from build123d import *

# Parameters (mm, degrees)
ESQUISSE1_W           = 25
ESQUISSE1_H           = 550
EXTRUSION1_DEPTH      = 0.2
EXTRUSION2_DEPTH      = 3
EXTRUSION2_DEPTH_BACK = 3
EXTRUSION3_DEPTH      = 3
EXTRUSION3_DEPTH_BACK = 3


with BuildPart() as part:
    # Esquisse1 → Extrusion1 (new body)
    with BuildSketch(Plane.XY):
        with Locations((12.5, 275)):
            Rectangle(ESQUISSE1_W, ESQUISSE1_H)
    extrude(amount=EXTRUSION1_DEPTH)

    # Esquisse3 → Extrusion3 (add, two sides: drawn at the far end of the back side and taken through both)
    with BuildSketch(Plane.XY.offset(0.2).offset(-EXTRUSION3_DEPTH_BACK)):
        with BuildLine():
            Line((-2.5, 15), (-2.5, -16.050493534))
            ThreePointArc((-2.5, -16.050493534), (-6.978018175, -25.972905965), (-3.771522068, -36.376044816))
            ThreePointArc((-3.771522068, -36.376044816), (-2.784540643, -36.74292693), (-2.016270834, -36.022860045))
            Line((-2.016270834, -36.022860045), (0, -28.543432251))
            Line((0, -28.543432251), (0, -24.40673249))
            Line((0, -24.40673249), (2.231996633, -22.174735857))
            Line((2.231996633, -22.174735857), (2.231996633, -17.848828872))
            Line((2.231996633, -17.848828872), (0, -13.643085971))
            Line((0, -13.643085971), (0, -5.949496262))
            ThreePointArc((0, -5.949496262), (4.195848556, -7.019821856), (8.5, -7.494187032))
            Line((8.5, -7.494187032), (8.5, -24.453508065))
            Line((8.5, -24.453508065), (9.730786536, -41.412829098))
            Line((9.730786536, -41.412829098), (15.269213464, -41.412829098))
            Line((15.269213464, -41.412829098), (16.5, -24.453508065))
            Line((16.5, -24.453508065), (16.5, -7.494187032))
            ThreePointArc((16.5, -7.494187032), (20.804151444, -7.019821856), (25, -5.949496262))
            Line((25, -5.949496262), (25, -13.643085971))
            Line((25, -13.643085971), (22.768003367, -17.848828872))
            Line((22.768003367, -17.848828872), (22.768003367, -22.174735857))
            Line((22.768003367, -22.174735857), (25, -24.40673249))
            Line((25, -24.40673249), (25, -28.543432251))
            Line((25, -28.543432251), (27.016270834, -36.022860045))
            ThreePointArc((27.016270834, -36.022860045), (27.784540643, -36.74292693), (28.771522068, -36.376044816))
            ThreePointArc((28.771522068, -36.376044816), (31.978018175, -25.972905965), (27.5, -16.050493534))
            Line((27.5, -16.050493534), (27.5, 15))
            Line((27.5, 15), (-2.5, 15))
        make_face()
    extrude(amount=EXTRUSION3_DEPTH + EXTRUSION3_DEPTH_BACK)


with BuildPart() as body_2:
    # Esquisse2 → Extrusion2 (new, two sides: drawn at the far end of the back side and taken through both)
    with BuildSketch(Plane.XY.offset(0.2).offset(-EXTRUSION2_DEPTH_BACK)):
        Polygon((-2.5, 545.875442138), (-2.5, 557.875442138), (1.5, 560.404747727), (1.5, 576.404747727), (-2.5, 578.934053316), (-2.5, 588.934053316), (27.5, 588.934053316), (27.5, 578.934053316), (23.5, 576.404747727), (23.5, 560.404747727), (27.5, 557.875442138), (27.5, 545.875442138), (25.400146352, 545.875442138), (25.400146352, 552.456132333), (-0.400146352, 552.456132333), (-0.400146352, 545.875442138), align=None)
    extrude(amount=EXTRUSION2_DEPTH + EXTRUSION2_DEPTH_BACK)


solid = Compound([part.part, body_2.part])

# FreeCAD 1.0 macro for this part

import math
import FreeCAD as App
import Part
import Sketcher
Q = App.Units.Quantity

doc = App.newDocument("Part")
body = doc.addObject("PartDesign::Body", "Body")

# Sketch on XY plane
sketch1 = doc.addObject("Sketcher::SketchObject", "Sketch")
body.addObject(sketch1)
sketch1.AttachmentSupport = (doc.XY_Plane, [""])
sketch1.MapMode = "FlatFace"
sketch1.addGeometry(Part.LineSegment(App.Vector(0, 550, 0), App.Vector(0, 0, 0)), False)
sketch1.addGeometry(Part.LineSegment(App.Vector(0, 0, 0), App.Vector(25, 0, 0)), False)
sketch1.addGeometry(Part.LineSegment(App.Vector(25, 0, 0), App.Vector(25, 550, 0)), False)
sketch1.addGeometry(Part.LineSegment(App.Vector(25, 550, 0), App.Vector(0, 550, 0)), False)
sketch1.addConstraint(Sketcher.Constraint("Coincident", 0, 2, 1, 1))
sketch1.addConstraint(Sketcher.Constraint("Coincident", 1, 2, 2, 1))
sketch1.addConstraint(Sketcher.Constraint("Coincident", 2, 2, 3, 1))
sketch1.addConstraint(Sketcher.Constraint("Coincident", 3, 2, 0, 1))
sketch1.addConstraint(Sketcher.Constraint("Vertical", 0))
sketch1.addConstraint(Sketcher.Constraint("Horizontal", 1))
sketch1.addConstraint(Sketcher.Constraint("Vertical", 2))
sketch1.addConstraint(Sketcher.Constraint("Horizontal", 3))
sketch1.addConstraint(Sketcher.Constraint("Coincident", 0, 2, -1, 1))
sketch1.addConstraint(Sketcher.Constraint("DistanceX", 1, 1, 1, 2, Q("25 mm")))
sketch1.addConstraint(Sketcher.Constraint("DistanceY", 0, 2, 0, 1, Q("550 mm")))
pad1 = doc.addObject("PartDesign::Pad", "Pad")
body.addObject(pad1)
pad1.Profile = sketch1
pad1.Length = 0.2

# Sketch on XY plane
sketch2 = doc.addObject("Sketcher::SketchObject", "Sketch001")
body.addObject(sketch2)
sketch2.AttachmentSupport = (doc.XY_Plane, [""])
sketch2.MapMode = "FlatFace"
sketch2.AttachmentOffset = App.Placement(App.Vector(0, 0, 0.2), App.Rotation())
sketch2.addGeometry(Part.LineSegment(App.Vector(-2.5, 15, 0), App.Vector(-2.5, -16.1, 0)), False)
sketch2.addGeometry(Part.ArcOfCircle(Part.Circle(App.Vector(8.4, -26.9, 0), App.Vector(0, 0, 1), 15.4), math.radians(135), math.radians(218)), False)
sketch2.addGeometry(Part.ArcOfCircle(Part.Circle(App.Vector(-3, -35.8, 0), App.Vector(0, 0, 1), 1), math.radians(-142), math.radians(-15)), False)
sketch2.addGeometry(Part.LineSegment(App.Vector(-2, -36, 0), App.Vector(0, -28.5, 0)), False)
sketch2.addGeometry(Part.LineSegment(App.Vector(0, -28.5, 0), App.Vector(0, -24.4, 0)), False)
sketch2.addGeometry(Part.LineSegment(App.Vector(0, -24.4, 0), App.Vector(2.2, -22.2, 0)), False)
sketch2.addGeometry(Part.LineSegment(App.Vector(2.2, -22.2, 0), App.Vector(2.2, -17.8, 0)), False)
sketch2.addGeometry(Part.LineSegment(App.Vector(2.2, -17.8, 0), App.Vector(0, -13.6, 0)), False)
sketch2.addGeometry(Part.LineSegment(App.Vector(0, -13.6, 0), App.Vector(0, -5.9, 0)), False)
sketch2.addGeometry(Part.ArcOfCircle(Part.Circle(App.Vector(9.7, 23.4, 0), App.Vector(0, 0, 1), 31), math.radians(-108.32), math.radians(-92.28)), False)
sketch2.addGeometry(Part.LineSegment(App.Vector(8.5, -7.5, 0), App.Vector(8.5, -24.5, 0)), False)
sketch2.addGeometry(Part.LineSegment(App.Vector(8.5, -24.5, 0), App.Vector(9.7, -41.4, 0)), False)
sketch2.addGeometry(Part.LineSegment(App.Vector(9.7, -41.4, 0), App.Vector(15.3, -41.4, 0)), False)
sketch2.addGeometry(Part.LineSegment(App.Vector(15.3, -41.4, 0), App.Vector(16.5, -24.5, 0)), False)
sketch2.addGeometry(Part.LineSegment(App.Vector(16.5, -24.5, 0), App.Vector(16.5, -7.5, 0)), False)
sketch2.addGeometry(Part.ArcOfCircle(Part.Circle(App.Vector(15.3, 23.4, 0), App.Vector(0, 0, 1), 31), math.radians(-87.72), math.radians(-71.68)), False)
sketch2.addGeometry(Part.LineSegment(App.Vector(25, -5.9, 0), App.Vector(25, -13.6, 0)), False)
sketch2.addGeometry(Part.LineSegment(App.Vector(25, -13.6, 0), App.Vector(22.8, -17.8, 0)), False)
sketch2.addGeometry(Part.LineSegment(App.Vector(22.8, -17.8, 0), App.Vector(22.8, -22.2, 0)), False)
sketch2.addGeometry(Part.LineSegment(App.Vector(22.8, -22.2, 0), App.Vector(25, -24.4, 0)), False)
sketch2.addGeometry(Part.LineSegment(App.Vector(25, -24.4, 0), App.Vector(25, -28.5, 0)), False)
sketch2.addGeometry(Part.LineSegment(App.Vector(25, -28.5, 0), App.Vector(27, -36, 0)), False)
sketch2.addGeometry(Part.ArcOfCircle(Part.Circle(App.Vector(28, -35.8, 0), App.Vector(0, 0, 1), 1), math.radians(-165), math.radians(-38)), False)
sketch2.addGeometry(Part.ArcOfCircle(Part.Circle(App.Vector(16.6, -26.9, 0), App.Vector(0, 0, 1), 15.4), math.radians(-38), math.radians(45)), False)
sketch2.addGeometry(Part.LineSegment(App.Vector(27.5, -16.1, 0), App.Vector(27.5, 15, 0)), False)
sketch2.addGeometry(Part.LineSegment(App.Vector(27.5, 15, 0), App.Vector(-2.5, 15, 0)), False)
sketch2.addConstraint(Sketcher.Constraint("Coincident", 0, 2, 1, 1))
sketch2.addConstraint(Sketcher.Constraint("Tangent", 1, 2, 2, 1))
sketch2.addConstraint(Sketcher.Constraint("Tangent", 2, 2, 3, 1))
sketch2.addConstraint(Sketcher.Constraint("Coincident", 3, 2, 4, 1))
sketch2.addConstraint(Sketcher.Constraint("Coincident", 4, 2, 5, 1))
sketch2.addConstraint(Sketcher.Constraint("Coincident", 5, 2, 6, 1))
sketch2.addConstraint(Sketcher.Constraint("Coincident", 6, 2, 7, 1))
sketch2.addConstraint(Sketcher.Constraint("Coincident", 7, 2, 8, 1))
sketch2.addConstraint(Sketcher.Constraint("Coincident", 8, 2, 9, 1))
sketch2.addConstraint(Sketcher.Constraint("Coincident", 9, 2, 10, 1))
sketch2.addConstraint(Sketcher.Constraint("Coincident", 10, 2, 11, 1))
sketch2.addConstraint(Sketcher.Constraint("Coincident", 11, 2, 12, 1))
sketch2.addConstraint(Sketcher.Constraint("Coincident", 12, 2, 13, 1))
sketch2.addConstraint(Sketcher.Constraint("Coincident", 13, 2, 14, 1))
sketch2.addConstraint(Sketcher.Constraint("Coincident", 14, 2, 15, 1))
sketch2.addConstraint(Sketcher.Constraint("Coincident", 15, 2, 16, 1))
sketch2.addConstraint(Sketcher.Constraint("Coincident", 16, 2, 17, 1))
sketch2.addConstraint(Sketcher.Constraint("Coincident", 17, 2, 18, 1))
sketch2.addConstraint(Sketcher.Constraint("Coincident", 18, 2, 19, 1))
sketch2.addConstraint(Sketcher.Constraint("Coincident", 19, 2, 20, 1))
sketch2.addConstraint(Sketcher.Constraint("Coincident", 20, 2, 21, 1))
sketch2.addConstraint(Sketcher.Constraint("Tangent", 21, 2, 22, 1))
sketch2.addConstraint(Sketcher.Constraint("Tangent", 22, 2, 23, 1))
sketch2.addConstraint(Sketcher.Constraint("Coincident", 23, 2, 24, 1))
sketch2.addConstraint(Sketcher.Constraint("Coincident", 24, 2, 25, 1))
sketch2.addConstraint(Sketcher.Constraint("Coincident", 25, 2, 0, 1))
sketch2.addConstraint(Sketcher.Constraint("Vertical", 0))
sketch2.addConstraint(Sketcher.Constraint("Vertical", 4))
sketch2.addConstraint(Sketcher.Constraint("Vertical", 6))
sketch2.addConstraint(Sketcher.Constraint("Vertical", 8))
sketch2.addConstraint(Sketcher.Constraint("Vertical", 10))
sketch2.addConstraint(Sketcher.Constraint("Horizontal", 12))
sketch2.addConstraint(Sketcher.Constraint("Vertical", 14))
sketch2.addConstraint(Sketcher.Constraint("Vertical", 16))
sketch2.addConstraint(Sketcher.Constraint("Vertical", 18))
sketch2.addConstraint(Sketcher.Constraint("Vertical", 20))
sketch2.addConstraint(Sketcher.Constraint("Vertical", 24))
sketch2.addConstraint(Sketcher.Constraint("Horizontal", 25))
sketch2.addConstraint(Sketcher.Constraint("Equal", 9, 15))
sketch2.addConstraint(Sketcher.Constraint("Equal", 2, 22))
sketch2.addConstraint(Sketcher.Constraint("Equal", 1, 23))
sketch2.addConstraint(Sketcher.Constraint("PointOnObject", 3, 2, -2))
sketch2.addConstraint(Sketcher.Constraint("PointOnObject", 7, 2, -2))
sketch2.addConstraint(Sketcher.Constraint("Perpendicular", 5, 19))
sketch2.addConstraint(Sketcher.Constraint("Horizontal", 9, 3, 15, 3))
sketch2.addConstraint(Sketcher.Constraint("Horizontal", 2, 3, 22, 3))
sketch2.addConstraint(Sketcher.Constraint("Horizontal", 1, 3, 23, 3))
sketch2.addConstraint(Sketcher.Constraint("Horizontal", 10, 2, 13, 2))
sketch2.addConstraint(Sketcher.Constraint("Horizontal", 9, 2, 14, 2))
sketch2.addConstraint(Sketcher.Constraint("Horizontal", 8, 2, 15, 2))
sketch2.addConstraint(Sketcher.Constraint("Horizontal", 7, 2, 16, 2))
sketch2.addConstraint(Sketcher.Constraint("Horizontal", 6, 2, 17, 2))
sketch2.addConstraint(Sketcher.Constraint("Horizontal", 5, 2, 18, 2))
sketch2.addConstraint(Sketcher.Constraint("Horizontal", 4, 2, 19, 2))
sketch2.addConstraint(Sketcher.Constraint("Horizontal", 3, 2, 20, 2))
sketch2.addConstraint(Sketcher.Constraint("Horizontal", 2, 2, 21, 2))
sketch2.addConstraint(Sketcher.Constraint("Horizontal", 0, 2, 23, 2))
sketch2.addConstraint(Sketcher.Constraint("Vertical", 9, 3, 11, 2))
sketch2.addConstraint(Sketcher.Constraint("Vertical", 15, 3, 12, 2))
sketch2.addConstraint(Sketcher.Constraint("Vertical", 16, 2, 19, 2))
sketch2.addConstraint(Sketcher.Constraint("Equal", 7, 17))
sketch2.addConstraint(Sketcher.Constraint("Radius", 2, Q("1 mm")))
sketch2.addConstraint(Sketcher.Constraint("DistanceX", 25, 2, 25, 1, Q("30 mm")))
sketch2.addConstraint(Sketcher.Constraint("DistanceX", -1, 1, 15, 2, Q("25 mm")))
sketch2.addConstraint(Sketcher.Constraint("DistanceY", -1, 1, 24, 2, Q("15 mm")))
sketch2.addConstraint(Sketcher.Constraint("DistanceX", 0, 2, 9, 2, Q("11 mm")))
sketch2.addConstraint(Sketcher.Constraint("DistanceY", 4, 1, 4, 2, Q("4.1367 mm")))
sketch2.addConstraint(Sketcher.Constraint("Radius", 1, Q("15.391436 mm")))
sketch2.addConstraint(Sketcher.Constraint("Radius", 9, Q("30.956053 mm")))
sketch2.addConstraint(Sketcher.Constraint("DistanceY", 8, 1, 8, 2, Q("7.69359 mm")))
sketch2.addConstraint(Sketcher.Constraint("DistanceY", 10, 2, 10, 1, Q("16.959321 mm")))
sketch2.addConstraint(Sketcher.Constraint("DistanceX", 1, 3, 9, 3, Q("1.347398 mm")))
sketch2.addConstraint(Sketcher.Constraint("DistanceY", 7, 2, 9, 2, Q("6.148899 mm")))
sketch2.addConstraint(Sketcher.Constraint("Distance", 3, Q("7.746431 mm")))
sketch2.addConstraint(Sketcher.Constraint("Distance", 5, Q("3.15652 mm")))
sketch2.addConstraint(Sketcher.Constraint("Distance", 7, Q("4.761311 mm")))
sketch2.addConstraint(Sketcher.Constraint("DistanceY", 0, 2, 0, 1, Q("31.050494 mm")))
sketch2.addConstraint(Sketcher.Constraint("DistanceY", 6, 1, 6, 2, Q("4.325907 mm")))
sketch2.addConstraint(Sketcher.Constraint("DistanceY", -1, 1, 9, 3, Q("23.437389 mm")))
sketch2.addConstraint(Sketcher.Constraint("DistanceY", 11, 2, -1, 1, Q("41.412829 mm")))
pad2 = doc.addObject("PartDesign::Pad", "Pad001")
body.addObject(pad2)
pad2.Profile = sketch2
pad2.Type = "TwoLengths"
pad2.Length = 3
pad2.Length2 = 3
body2 = doc.addObject("PartDesign::Body", "Body001")

# Sketch on XY plane
sketch3 = doc.addObject("Sketcher::SketchObject", "Sketch002")
body2.addObject(sketch3)
sketch3.AttachmentSupport = (doc.getObject("XY_Plane001"), [""])
sketch3.MapMode = "FlatFace"
sketch3.AttachmentOffset = App.Placement(App.Vector(0, 0, 0.2), App.Rotation())
sketch3.addGeometry(Part.LineSegment(App.Vector(-2.5, 557.9, 0), App.Vector(-2.5, 545.9, 0)), False)
sketch3.addGeometry(Part.LineSegment(App.Vector(-2.5, 545.9, 0), App.Vector(-0.4, 545.9, 0)), False)
sketch3.addGeometry(Part.LineSegment(App.Vector(-0.4, 545.9, 0), App.Vector(-0.4, 552.5, 0)), False)
sketch3.addGeometry(Part.LineSegment(App.Vector(-0.4, 552.5, 0), App.Vector(25.4, 552.5, 0)), False)
sketch3.addGeometry(Part.LineSegment(App.Vector(25.4, 552.5, 0), App.Vector(25.4, 545.9, 0)), False)
sketch3.addGeometry(Part.LineSegment(App.Vector(25.4, 545.9, 0), App.Vector(27.5, 545.9, 0)), False)
sketch3.addGeometry(Part.LineSegment(App.Vector(27.5, 545.9, 0), App.Vector(27.5, 557.9, 0)), False)
sketch3.addGeometry(Part.LineSegment(App.Vector(27.5, 557.9, 0), App.Vector(23.5, 560.4, 0)), False)
sketch3.addGeometry(Part.LineSegment(App.Vector(23.5, 560.4, 0), App.Vector(23.5, 576.4, 0)), False)
sketch3.addGeometry(Part.LineSegment(App.Vector(23.5, 576.4, 0), App.Vector(27.5, 578.9, 0)), False)
sketch3.addGeometry(Part.LineSegment(App.Vector(27.5, 578.9, 0), App.Vector(27.5, 588.9, 0)), False)
sketch3.addGeometry(Part.LineSegment(App.Vector(27.5, 588.9, 0), App.Vector(-2.5, 588.9, 0)), False)
sketch3.addGeometry(Part.LineSegment(App.Vector(-2.5, 588.9, 0), App.Vector(-2.5, 578.9, 0)), False)
sketch3.addGeometry(Part.LineSegment(App.Vector(-2.5, 578.9, 0), App.Vector(1.5, 576.4, 0)), False)
sketch3.addGeometry(Part.LineSegment(App.Vector(1.5, 576.4, 0), App.Vector(1.5, 560.4, 0)), False)
sketch3.addGeometry(Part.LineSegment(App.Vector(1.5, 560.4, 0), App.Vector(-2.5, 557.9, 0)), False)
sketch3.addConstraint(Sketcher.Constraint("Coincident", 0, 2, 1, 1))
sketch3.addConstraint(Sketcher.Constraint("Coincident", 1, 2, 2, 1))
sketch3.addConstraint(Sketcher.Constraint("Coincident", 2, 2, 3, 1))
sketch3.addConstraint(Sketcher.Constraint("Coincident", 3, 2, 4, 1))
sketch3.addConstraint(Sketcher.Constraint("Coincident", 4, 2, 5, 1))
sketch3.addConstraint(Sketcher.Constraint("Coincident", 5, 2, 6, 1))
sketch3.addConstraint(Sketcher.Constraint("Coincident", 6, 2, 7, 1))
sketch3.addConstraint(Sketcher.Constraint("Coincident", 7, 2, 8, 1))
sketch3.addConstraint(Sketcher.Constraint("Coincident", 8, 2, 9, 1))
sketch3.addConstraint(Sketcher.Constraint("Coincident", 9, 2, 10, 1))
sketch3.addConstraint(Sketcher.Constraint("Coincident", 10, 2, 11, 1))
sketch3.addConstraint(Sketcher.Constraint("Coincident", 11, 2, 12, 1))
sketch3.addConstraint(Sketcher.Constraint("Coincident", 12, 2, 13, 1))
sketch3.addConstraint(Sketcher.Constraint("Coincident", 13, 2, 14, 1))
sketch3.addConstraint(Sketcher.Constraint("Coincident", 14, 2, 15, 1))
sketch3.addConstraint(Sketcher.Constraint("Coincident", 15, 2, 0, 1))
sketch3.addConstraint(Sketcher.Constraint("Vertical", 0))
sketch3.addConstraint(Sketcher.Constraint("Horizontal", 1))
sketch3.addConstraint(Sketcher.Constraint("Vertical", 2))
sketch3.addConstraint(Sketcher.Constraint("Horizontal", 3))
sketch3.addConstraint(Sketcher.Constraint("Vertical", 4))
sketch3.addConstraint(Sketcher.Constraint("Horizontal", 5))
sketch3.addConstraint(Sketcher.Constraint("Vertical", 6))
sketch3.addConstraint(Sketcher.Constraint("Vertical", 8))
sketch3.addConstraint(Sketcher.Constraint("Vertical", 10))
sketch3.addConstraint(Sketcher.Constraint("Horizontal", 11))
sketch3.addConstraint(Sketcher.Constraint("Vertical", 12))
sketch3.addConstraint(Sketcher.Constraint("Vertical", 14))
sketch3.addConstraint(Sketcher.Constraint("Parallel", 7, 13))
sketch3.addConstraint(Sketcher.Constraint("Parallel", 9, 15))
sketch3.addConstraint(Sketcher.Constraint("Horizontal", 1, 2, 4, 2))
sketch3.addConstraint(Sketcher.Constraint("Horizontal", 9, 2, 12, 2))
sketch3.addConstraint(Sketcher.Constraint("Horizontal", 8, 2, 13, 2))
sketch3.addConstraint(Sketcher.Constraint("Horizontal", 7, 2, 14, 2))
sketch3.addConstraint(Sketcher.Constraint("Horizontal", 6, 2, 15, 2))
sketch3.addConstraint(Sketcher.Constraint("Vertical", 6, 2, 9, 2))
sketch3.addConstraint(Sketcher.Constraint("Vertical", 0, 2, 11, 2))
sketch3.addConstraint(Sketcher.Constraint("Equal", 1, 5))
sketch3.addConstraint(Sketcher.Constraint("DistanceX", 11, 2, 11, 1, Q("30 mm")))
sketch3.addConstraint(Sketcher.Constraint("DistanceY", 0, 2, 0, 1, Q("12 mm")))
sketch3.addConstraint(Sketcher.Constraint("DistanceY", 8, 1, 8, 2, Q("16 mm")))
sketch3.addConstraint(Sketcher.Constraint("DistanceY", 10, 1, 10, 2, Q("10 mm")))
sketch3.addConstraint(Sketcher.Constraint("DistanceX", 7, 2, 6, 2, Q("4 mm")))
sketch3.addConstraint(Sketcher.Constraint("DistanceX", 0, 2, -1, 1, Q("2.5 mm")))
sketch3.addConstraint(Sketcher.Constraint("DistanceY", 2, 1, 2, 2, Q("6.58069 mm")))
sketch3.addConstraint(Sketcher.Constraint("DistanceX", 1, 1, 1, 2, Q("2.099854 mm")))
sketch3.addConstraint(Sketcher.Constraint("DistanceY", 6, 2, 9, 2, Q("21.058611 mm")))
sketch3.addConstraint(Sketcher.Constraint("DistanceY", -1, 1, 0, 2, Q("545.875442 mm")))
pad3 = doc.addObject("PartDesign::Pad", "Pad002")
body2.addObject(pad3)
pad3.Profile = sketch3
pad3.Type = "TwoLengths"
pad3.Length = 3
pad3.Length2 = 3

doc.recompute()
